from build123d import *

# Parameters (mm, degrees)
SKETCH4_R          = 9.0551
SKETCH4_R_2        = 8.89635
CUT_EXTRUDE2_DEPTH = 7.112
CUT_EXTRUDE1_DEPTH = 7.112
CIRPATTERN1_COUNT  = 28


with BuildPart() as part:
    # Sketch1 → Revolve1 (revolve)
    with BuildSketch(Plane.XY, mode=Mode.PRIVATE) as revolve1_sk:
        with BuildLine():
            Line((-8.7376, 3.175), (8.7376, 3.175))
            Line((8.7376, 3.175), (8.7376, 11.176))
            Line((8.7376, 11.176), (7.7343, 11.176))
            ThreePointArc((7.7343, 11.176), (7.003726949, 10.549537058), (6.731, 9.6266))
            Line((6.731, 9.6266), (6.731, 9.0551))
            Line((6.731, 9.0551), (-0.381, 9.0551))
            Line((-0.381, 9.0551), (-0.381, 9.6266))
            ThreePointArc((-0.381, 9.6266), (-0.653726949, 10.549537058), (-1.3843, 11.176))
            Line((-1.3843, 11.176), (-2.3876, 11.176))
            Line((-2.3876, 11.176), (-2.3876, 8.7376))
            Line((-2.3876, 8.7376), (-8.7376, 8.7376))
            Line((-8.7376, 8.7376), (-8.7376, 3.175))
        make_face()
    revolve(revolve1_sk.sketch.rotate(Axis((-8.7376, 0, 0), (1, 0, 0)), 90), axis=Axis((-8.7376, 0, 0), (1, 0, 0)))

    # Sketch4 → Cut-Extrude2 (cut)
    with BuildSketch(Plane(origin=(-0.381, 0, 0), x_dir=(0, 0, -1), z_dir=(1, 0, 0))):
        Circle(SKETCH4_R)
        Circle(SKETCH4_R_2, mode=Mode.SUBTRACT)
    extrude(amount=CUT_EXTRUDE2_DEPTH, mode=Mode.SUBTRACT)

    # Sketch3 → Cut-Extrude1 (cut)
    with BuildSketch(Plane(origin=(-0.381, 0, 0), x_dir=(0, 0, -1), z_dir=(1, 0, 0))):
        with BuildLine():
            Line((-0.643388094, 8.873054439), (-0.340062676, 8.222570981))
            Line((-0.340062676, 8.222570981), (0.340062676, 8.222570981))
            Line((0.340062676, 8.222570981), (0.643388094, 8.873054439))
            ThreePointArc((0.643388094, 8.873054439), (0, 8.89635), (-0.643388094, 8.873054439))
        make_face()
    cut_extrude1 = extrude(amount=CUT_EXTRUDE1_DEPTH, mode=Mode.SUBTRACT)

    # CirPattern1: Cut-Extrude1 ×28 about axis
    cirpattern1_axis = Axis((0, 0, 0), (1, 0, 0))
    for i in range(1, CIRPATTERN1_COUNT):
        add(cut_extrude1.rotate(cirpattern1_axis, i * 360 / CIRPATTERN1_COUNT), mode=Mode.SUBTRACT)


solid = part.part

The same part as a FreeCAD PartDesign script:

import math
import FreeCAD as App
import Part
import Sketcher

V = App.Vector
Q = App.Units.Quantity

doc = App.newDocument("Part")
body = doc.addObject("PartDesign::Body", "Body")

sketch1 = body.newObject("Sketcher::SketchObject", "Sketch")
sketch1.AttachmentSupport = (doc.getObject("XY_Plane"), [""])
sketch1.MapMode = "FlatFace"
sketch1.addGeometry([
    Part.LineSegment(V(-8.7, 3.2, 0), V(8.7, 3.2, 0)),
    Part.LineSegment(V(8.7, 3.2, 0), V(8.7, 11.2, 0)),
    Part.LineSegment(V(8.7, 11.2, 0), V(7.7, 11.2, 0)),
    Part.ArcOfCircle(Part.Circle(V(8.4, 9.6, 0), V(0, 0, 1), 1.7), math.radians(114), math.radians(180)),
    Part.LineSegment(V(6.7, 9.6, 0), V(6.7, 9.1, 0)),
    Part.LineSegment(V(6.7, 9.1, 0), V(-0.4, 9.1, 0)),
    Part.LineSegment(V(-0.4, 9.1, 0), V(-0.4, 9.6, 0)),
    Part.ArcOfCircle(Part.Circle(V(-2.1, 9.6, 0), V(0, 0, 1), 1.7), math.radians(0), math.radians(66)),
    Part.LineSegment(V(-1.4, 11.2, 0), V(-2.4, 11.2, 0)),
    Part.LineSegment(V(-2.4, 11.2, 0), V(-2.4, 8.7, 0)),
    Part.LineSegment(V(-2.4, 8.7, 0), V(-8.7, 8.7, 0)),
    Part.LineSegment(V(-8.7, 8.7, 0), V(-8.7, 3.2, 0)),
], False)
sketch1.addConstraint([
    Sketcher.Constraint("Coincident", 0, 2, 1, 1),
    Sketcher.Constraint("Coincident", 1, 2, 2, 1),
    Sketcher.Constraint("Coincident", 2, 2, 3, 1),
    Sketcher.Constraint("Tangent", 3, 2, 4, 1),
    Sketcher.Constraint("Coincident", 4, 2, 5, 1),
    Sketcher.Constraint("Coincident", 5, 2, 6, 1),
    Sketcher.Constraint("Tangent", 6, 2, 7, 1),
    Sketcher.Constraint("Coincident", 7, 2, 8, 1),
    Sketcher.Constraint("Coincident", 8, 2, 9, 1),
    Sketcher.Constraint("Coincident", 9, 2, 10, 1),
    Sketcher.Constraint("Coincident", 10, 2, 11, 1),
    Sketcher.Constraint("Coincident", 11, 2, 0, 1),
    Sketcher.Constraint("Horizontal", 0),
    Sketcher.Constraint("Vertical", 1),
    Sketcher.Constraint("Horizontal", 2),
    Sketcher.Constraint("Vertical", 4),
    Sketcher.Constraint("Horizontal", 5),
    Sketcher.Constraint("Vertical", 6),
    Sketcher.Constraint("Horizontal", 8),
    Sketcher.Constraint("Vertical", 9),
    Sketcher.Constraint("Horizontal", 10),
    Sketcher.Constraint("Vertical", 11),
    Sketcher.Constraint("Equal", 3, 7),
    Sketcher.Constraint("Horizontal", 3, 3, 7, 3),
    Sketcher.Constraint("Horizontal", 2, 2, 7, 2),
    Sketcher.Constraint("Equal", 2, 8),
    Sketcher.Constraint("DistanceX", 5, 2, 5, 1, Q("0.28 in")),
    Sketcher.Constraint("DistanceX", 10, 2, 10, 1, Q("0.25 in")),
    Sketcher.Constraint("DistanceX", 0, 1, 0, 2, Q("0.688 in")),
    Sketcher.Constraint("DistanceY", 1, 1, 1, 2, Q("0.315 in")),
    Sketcher.Constraint("DistanceY", 9, 2, 9, 1, Q("0.096 in")),
    Sketcher.Constraint("DistanceY", -1, 1, 1, 2, Q("0.44 in")),
    Sketcher.Constraint("DistanceX", 2, 2, 2, 1, Q("0.0395 in")),
    Sketcher.Constraint("DistanceY", 4, 2, 4, 1, Q("0.0225 in")),
    Sketcher.Constraint("DistanceY", -1, 1, 3, 3, Q("0.379 in")),
    Sketcher.Constraint("DistanceX", -1, 1, 0, 2, Q("0.344 in")),
])
revolution = body.newObject("PartDesign::Revolution", "Revolution")
revolution.Profile = sketch1
revolution.ReferenceAxis = (sketch1, ["H_Axis"])
revolution.Angle = 360

sketch2 = body.newObject("Sketcher::SketchObject", "Sketch001")
sketch2.AttachmentSupport = (doc.getObject("YZ_Plane"), [""])
sketch2.MapMode = "FlatFace"
sketch2.AttachmentOffset = App.Placement(V(0, 0, -0.015 * 25.4), App.Rotation())
sketch2.addGeometry([
    Part.Circle(V(0, 0, 0), V(0, 0, 1), 9),
    Part.Circle(V(0, 0, 0), V(0, 0, 1), 9),
], False)
sketch2.addConstraint([
    Sketcher.Constraint("Coincident", 0, 3, -1, 1),
    Sketcher.Constraint("Coincident", 1, 3, -1, 1),
    Sketcher.Constraint("Diameter", 0, Q("0.713 in")),
    Sketcher.Constraint("Diameter", 1, Q("0.7005 in")),
])
pocket1 = body.newObject("PartDesign::Pocket", "Pocket")
pocket1.Profile = sketch2
pocket1.Length = Q("0.28 in")
pocket1.Reversed = True

sketch3 = body.newObject("Sketcher::SketchObject", "Sketch002")
sketch3.AttachmentSupport = (doc.getObject("YZ_Plane"), [""])
sketch3.MapMode = "FlatFace"
sketch3.AttachmentOffset = App.Placement(V(0, 0, -0.015 * 25.4), App.Rotation())
sketch3.addGeometry([
    Part.LineSegment(V(8.9, 0.6, 0), V(8.2, 0.3, 0)),
    Part.LineSegment(V(8.2, 0.3, 0), V(8.2, -0.3, 0)),
    Part.LineSegment(V(8.2, -0.3, 0), V(8.9, -0.6, 0)),
    Part.ArcOfCircle(Part.Circle(V(0, 0, 0), V(0, 0, 1), 8.9), math.radians(-4.15), math.radians(4.15)),
], False)
sketch3.addConstraint([
    Sketcher.Constraint("Coincident", 0, 2, 1, 1),
    Sketcher.Constraint("Coincident", 1, 2, 2, 1),
    Sketcher.Constraint("Coincident", 2, 2, 3, 1),
    Sketcher.Constraint("Coincident", 3, 2, 0, 1),
    Sketcher.Constraint("Vertical", 1),
    Sketcher.Constraint("Coincident", 3, 3, -1, 1),
    Sketcher.Constraint("Vertical", 2, 2, 3, 2),
    Sketcher.Constraint("Equal", 0, 2),
    Sketcher.Constraint("Angle", 0, Q("-155 deg")),
    Sketcher.Constraint("Radius", 3, 8.89635),
    Sketcher.Constraint("Distance", 0, 0.717729),
    Sketcher.Constraint("DistanceY", 1, 2, 1, 1, 0.680125),
])
pocket2 = body.newObject("PartDesign::Pocket", "Pocket001")
pocket2.Profile = sketch3
pocket2.Length = Q("0.28 in")
pocket2.Reversed = True
doc.recompute()

polarpattern = body.newObject("PartDesign::PolarPattern", "PolarPattern")
polarpattern.Originals = [pocket2]
polarpattern.Axis = (doc.getObject("X_Axis"), [""])
polarpattern.Angle = 360
polarpattern.Occurrences = 28
body.Tip = polarpattern

doc.recompute()
